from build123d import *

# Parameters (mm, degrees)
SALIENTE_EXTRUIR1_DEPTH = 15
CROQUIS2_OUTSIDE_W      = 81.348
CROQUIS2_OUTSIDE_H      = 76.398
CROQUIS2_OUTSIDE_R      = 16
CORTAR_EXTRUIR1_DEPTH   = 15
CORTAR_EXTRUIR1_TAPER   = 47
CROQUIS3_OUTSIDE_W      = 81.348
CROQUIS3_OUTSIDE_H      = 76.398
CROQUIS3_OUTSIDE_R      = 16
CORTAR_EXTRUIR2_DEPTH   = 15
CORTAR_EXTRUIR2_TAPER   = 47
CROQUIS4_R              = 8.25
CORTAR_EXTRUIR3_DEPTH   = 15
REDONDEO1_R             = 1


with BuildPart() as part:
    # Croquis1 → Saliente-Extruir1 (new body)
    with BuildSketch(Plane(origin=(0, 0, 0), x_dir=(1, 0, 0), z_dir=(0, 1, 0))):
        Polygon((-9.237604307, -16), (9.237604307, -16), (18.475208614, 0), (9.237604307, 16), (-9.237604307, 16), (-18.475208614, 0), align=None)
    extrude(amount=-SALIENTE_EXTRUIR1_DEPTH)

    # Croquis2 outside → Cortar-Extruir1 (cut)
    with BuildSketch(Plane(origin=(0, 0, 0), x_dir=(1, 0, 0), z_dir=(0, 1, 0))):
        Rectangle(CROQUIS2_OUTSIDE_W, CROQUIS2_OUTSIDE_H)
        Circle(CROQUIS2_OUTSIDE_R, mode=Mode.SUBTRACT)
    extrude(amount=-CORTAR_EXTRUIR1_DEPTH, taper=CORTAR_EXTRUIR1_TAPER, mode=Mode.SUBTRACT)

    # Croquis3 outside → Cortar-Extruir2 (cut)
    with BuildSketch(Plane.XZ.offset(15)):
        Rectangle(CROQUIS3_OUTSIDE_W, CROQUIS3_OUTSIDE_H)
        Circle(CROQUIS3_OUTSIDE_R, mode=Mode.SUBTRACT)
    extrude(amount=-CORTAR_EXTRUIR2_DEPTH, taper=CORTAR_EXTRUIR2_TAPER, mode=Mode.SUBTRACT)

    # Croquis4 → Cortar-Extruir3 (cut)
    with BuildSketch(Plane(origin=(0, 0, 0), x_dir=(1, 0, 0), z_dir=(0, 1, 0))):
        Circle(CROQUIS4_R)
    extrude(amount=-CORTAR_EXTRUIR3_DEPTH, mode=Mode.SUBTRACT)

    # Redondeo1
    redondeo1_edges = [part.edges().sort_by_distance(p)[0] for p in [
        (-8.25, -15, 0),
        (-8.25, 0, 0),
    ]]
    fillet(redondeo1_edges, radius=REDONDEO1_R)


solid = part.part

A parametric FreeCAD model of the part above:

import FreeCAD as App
import Part
import Sketcher
Q = App.Units.Quantity


def edges_at(feature, points):
    """Names of the edges that pass closest to the given points."""
    edges = feature.Shape.Edges
    near = lambda p: min(range(len(edges)), key=lambda i: edges[i].distToShape(Part.Vertex(*p))[0])
    return sorted({f"Edge{near(p) + 1}" for p in points})

doc = App.newDocument("Part")
body = doc.addObject("PartDesign::Body", "Body")

sketch1 = doc.addObject("Sketcher::SketchObject", "Sketch")
body.addObject(sketch1)
sketch1.AttachmentSupport = (doc.XZ_Plane, [""])
sketch1.MapMode = "FlatFace"
sketch1.addGeometry(Part.LineSegment(App.Vector(-9, 16, 0), App.Vector(9, 16, 0)), False)
sketch1.addGeometry(Part.LineSegment(App.Vector(9, 16, 0), App.Vector(18, 0, 0)), False)
sketch1.addGeometry(Part.LineSegment(App.Vector(18, 0, 0), App.Vector(9, -16, 0)), False)
sketch1.addGeometry(Part.LineSegment(App.Vector(9, -16, 0), App.Vector(-9, -16, 0)), False)
sketch1.addGeometry(Part.LineSegment(App.Vector(-9, -16, 0), App.Vector(-18, 0, 0)), False)
sketch1.addGeometry(Part.LineSegment(App.Vector(-18, 0, 0), App.Vector(-9, 16, 0)), False)
sketch1.addConstraint(Sketcher.Constraint("Coincident", 0, 2, 1, 1))
sketch1.addConstraint(Sketcher.Constraint("Coincident", 1, 2, 2, 1))
sketch1.addConstraint(Sketcher.Constraint("Coincident", 2, 2, 3, 1))
sketch1.addConstraint(Sketcher.Constraint("Coincident", 3, 2, 4, 1))
sketch1.addConstraint(Sketcher.Constraint("Coincident", 4, 2, 5, 1))
sketch1.addConstraint(Sketcher.Constraint("Coincident", 5, 2, 0, 1))
sketch1.addConstraint(Sketcher.Constraint("Horizontal", 0))
sketch1.addConstraint(Sketcher.Constraint("Horizontal", 3))
sketch1.addConstraint(Sketcher.Constraint("Symmetric", 0, 2, 3, 2, -1, 1))
sketch1.addConstraint(Sketcher.Constraint("Symmetric", 1, 2, 4, 2, -1, 1))
sketch1.addConstraint(Sketcher.Constraint("PointOnObject", 1, 2, -1))
sketch1.addConstraint(Sketcher.Constraint("Parallel", 2, 5))
sketch1.addConstraint(Sketcher.Constraint("Vertical", 0, 2, 2, 2))
sketch1.addConstraint(Sketcher.Constraint("Angle", 1, Q("-60 deg")))
sketch1.addConstraint(Sketcher.Constraint("DistanceY", -1, 1, 0, 2, Q("16 mm")))
sketch1.addConstraint(Sketcher.Constraint("DistanceX", 0, 1, 0, 2, Q("18.475209 mm")))
pad1 = doc.addObject("PartDesign::Pad", "Pad")
body.addObject(pad1)
pad1.Profile = sketch1
pad1.Length = 15

sketch2 = doc.addObject("Sketcher::SketchObject", "Sketch001")
body.addObject(sketch2)
sketch2.AttachmentSupport = (doc.XZ_Plane, [""])
sketch2.MapMode = "FlatFace"
sketch2.addGeometry(Part.LineSegment(App.Vector(-41, -38, 0), App.Vector(-41, 38, 0)), False)
sketch2.addGeometry(Part.LineSegment(App.Vector(-41, 38, 0), App.Vector(41, 38, 0)), False)
sketch2.addGeometry(Part.LineSegment(App.Vector(41, 38, 0), App.Vector(41, -38, 0)), False)
sketch2.addGeometry(Part.LineSegment(App.Vector(41, -38, 0), App.Vector(-41, -38, 0)), False)
sketch2.addGeometry(Part.Circle(App.Vector(0, 0, 0), App.Vector(0, 0, 1), 16), False)
sketch2.addConstraint(Sketcher.Constraint("Coincident", 0, 2, 1, 1))
sketch2.addConstraint(Sketcher.Constraint("Coincident", 1, 2, 2, 1))
sketch2.addConstraint(Sketcher.Constraint("Coincident", 2, 2, 3, 1))
sketch2.addConstraint(Sketcher.Constraint("Coincident", 3, 2, 0, 1))
sketch2.addConstraint(Sketcher.Constraint("Vertical", 0))
sketch2.addConstraint(Sketcher.Constraint("Horizontal", 1))
sketch2.addConstraint(Sketcher.Constraint("Vertical", 2))
sketch2.addConstraint(Sketcher.Constraint("Horizontal", 3))
sketch2.addConstraint(Sketcher.Constraint("Coincident", 4, 3, -1, 1))
sketch2.addConstraint(Sketcher.Constraint("Symmetric", 0, 2, 2, 2, -1, 1))
sketch2.addConstraint(Sketcher.Constraint("Diameter", 4, Q("32 mm")))
sketch2.addConstraint(Sketcher.Constraint("DistanceX", 1, 1, 1, 2, Q("81.348 mm")))
sketch2.addConstraint(Sketcher.Constraint("DistanceY", 0, 1, 0, 2, Q("76.398 mm")))
pocket1 = doc.addObject("PartDesign::Pocket", "Pocket")
body.addObject(pocket1)
pocket1.Profile = sketch2
pocket1.Length = 15
pocket1.Reversed = True
pocket1.TaperAngle = 47

sketch3 = doc.addObject("Sketcher::SketchObject", "Sketch002")
body.addObject(sketch3)
sketch3.AttachmentSupport = (doc.XZ_Plane, [""])
sketch3.MapMode = "FlatFace"
sketch3.AttachmentOffset = App.Placement(App.Vector(0, 0, 15), App.Rotation())
sketch3.addGeometry(Part.LineSegment(App.Vector(-41, 38, 0), App.Vector(-41, -38, 0)), False)
sketch3.addGeometry(Part.LineSegment(App.Vector(-41, -38, 0), App.Vector(41, -38, 0)), False)
sketch3.addGeometry(Part.LineSegment(App.Vector(41, -38, 0), App.Vector(41, 38, 0)), False)
sketch3.addGeometry(Part.LineSegment(App.Vector(41, 38, 0), App.Vector(-41, 38, 0)), False)
sketch3.addGeometry(Part.Circle(App.Vector(0, 0, 0), App.Vector(0, 0, 1), 16), False)
sketch3.addConstraint(Sketcher.Constraint("Coincident", 0, 2, 1, 1))
sketch3.addConstraint(Sketcher.Constraint("Coincident", 1, 2, 2, 1))
sketch3.addConstraint(Sketcher.Constraint("Coincident", 2, 2, 3, 1))
sketch3.addConstraint(Sketcher.Constraint("Coincident", 3, 2, 0, 1))
sketch3.addConstraint(Sketcher.Constraint("Vertical", 0))
sketch3.addConstraint(Sketcher.Constraint("Horizontal", 1))
sketch3.addConstraint(Sketcher.Constraint("Vertical", 2))
sketch3.addConstraint(Sketcher.Constraint("Horizontal", 3))
sketch3.addConstraint(Sketcher.Constraint("Coincident", 4, 3, -1, 1))
sketch3.addConstraint(Sketcher.Constraint("Symmetric", 0, 2, 2, 2, -1, 1))
sketch3.addConstraint(Sketcher.Constraint("Diameter", 4, Q("32 mm")))
sketch3.addConstraint(Sketcher.Constraint("DistanceX", 1, 1, 1, 2, Q("81.348 mm")))
sketch3.addConstraint(Sketcher.Constraint("DistanceY", 0, 2, 0, 1, Q("76.398 mm")))
pocket2 = doc.addObject("PartDesign::Pocket", "Pocket001")
body.addObject(pocket2)
pocket2.Profile = sketch3
pocket2.Length = 15
pocket2.TaperAngle = 47

sketch4 = doc.addObject("Sketcher::SketchObject", "Sketch003")
body.addObject(sketch4)
sketch4.AttachmentSupport = (doc.XZ_Plane, [""])
sketch4.MapMode = "FlatFace"
sketch4.addGeometry(Part.Circle(App.Vector(0, 0, 0), App.Vector(0, 0, 1), 8), False)
sketch4.addConstraint(Sketcher.Constraint("Coincident", 0, 3, -1, 1))
sketch4.addConstraint(Sketcher.Constraint("Diameter", 0, Q("16.5 mm")))
pocket3 = doc.addObject("PartDesign::Pocket", "Pocket002")
body.addObject(pocket3)
pocket3.Profile = sketch4
pocket3.Length = 15
pocket3.Reversed = True
doc.recompute()

fillet = doc.addObject("PartDesign::Fillet", "Fillet")
body.addObject(fillet)
fillet.Base = (pocket3, edges_at(pocket3, [(-8.25, -15, 0), (-8.25, 0, 0)]))
fillet.Radius = 1

doc.recompute()
